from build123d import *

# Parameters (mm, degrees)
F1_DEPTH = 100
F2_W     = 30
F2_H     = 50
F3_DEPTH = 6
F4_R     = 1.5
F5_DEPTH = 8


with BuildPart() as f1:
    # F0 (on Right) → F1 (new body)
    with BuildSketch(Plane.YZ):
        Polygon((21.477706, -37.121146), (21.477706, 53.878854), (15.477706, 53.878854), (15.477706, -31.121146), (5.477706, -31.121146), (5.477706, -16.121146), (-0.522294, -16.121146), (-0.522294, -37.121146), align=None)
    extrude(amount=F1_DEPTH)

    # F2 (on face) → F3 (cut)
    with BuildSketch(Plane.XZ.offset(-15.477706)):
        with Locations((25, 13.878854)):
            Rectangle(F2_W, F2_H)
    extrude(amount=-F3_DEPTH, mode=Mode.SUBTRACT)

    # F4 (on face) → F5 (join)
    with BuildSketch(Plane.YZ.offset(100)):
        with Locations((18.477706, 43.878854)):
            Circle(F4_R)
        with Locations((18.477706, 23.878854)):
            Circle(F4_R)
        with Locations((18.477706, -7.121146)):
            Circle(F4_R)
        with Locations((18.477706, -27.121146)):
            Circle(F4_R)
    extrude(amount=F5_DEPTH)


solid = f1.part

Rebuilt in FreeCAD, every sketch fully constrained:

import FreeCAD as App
import Part
import Sketcher
from FreeCAD import Vector

doc = App.newDocument("Part")
params = doc.addObject("Spreadsheet::Sheet", "Params")
for row, (alias, value) in enumerate([
    ("sketch1_width", "6 mm"),
    ("sketch1_width2", "10 mm"),
    ("sketch1_height", "91 mm"),
    ("sketch1_height2", "85 mm"),
    ("sketch1_height3", "15 mm"),
    ("pad1_length", "100 mm"),
    ("sketch2_width", "30 mm"),
    ("sketch2_height", "50 mm"),
    ("pocket1_length", "6 mm"),
    ("sketch3_diameter", "3 mm"),
    ("pad2_length", "8 mm"),
], start=1):
    params.set(f"A{row}", alias)
    params.set(f"B{row}", "=" + value)
    params.setAlias(f"B{row}", alias)

body = doc.addObject("PartDesign::Body", "Body")

sketch1 = doc.addObject("Sketcher::SketchObject", "Sketch")
body.addObject(sketch1)
sketch1.AttachmentSupport = (doc.YZ_Plane, [""])
sketch1.MapMode = "FlatFace"
sketch1.addGeometry([
    Part.LineSegment(Vector(21, -37, 0), Vector(21, 54, 0)),
    Part.LineSegment(Vector(21, 54, 0), Vector(15, 54, 0)),
    Part.LineSegment(Vector(15, 54, 0), Vector(15, -31, 0)),
    Part.LineSegment(Vector(15, -31, 0), Vector(5, -31, 0)),
    Part.LineSegment(Vector(5, -31, 0), Vector(5, -16, 0)),
    Part.LineSegment(Vector(5, -16, 0), Vector(-1, -16, 0)),
    Part.LineSegment(Vector(-1, -16, 0), Vector(-1, -37, 0)),
    Part.LineSegment(Vector(-1, -37, 0), Vector(21, -37, 0)),
], False)
sketch1.addConstraint([
    Sketcher.Constraint("Coincident", 0, 2, 1, 1),
    Sketcher.Constraint("Coincident", 1, 2, 2, 1),
    Sketcher.Constraint("Coincident", 2, 2, 3, 1),
    Sketcher.Constraint("Coincident", 3, 2, 4, 1),
    Sketcher.Constraint("Coincident", 4, 2, 5, 1),
    Sketcher.Constraint("Coincident", 5, 2, 6, 1),
    Sketcher.Constraint("Coincident", 6, 2, 7, 1),
    Sketcher.Constraint("Coincident", 7, 2, 0, 1),
    Sketcher.Constraint("Vertical", 0),
    Sketcher.Constraint("Horizontal", 1),
    Sketcher.Constraint("Vertical", 2),
    Sketcher.Constraint("Horizontal", 3),
    Sketcher.Constraint("Vertical", 4),
    Sketcher.Constraint("Horizontal", 5),
    Sketcher.Constraint("Vertical", 6),
    Sketcher.Constraint("Horizontal", 7),
    Sketcher.Constraint("Equal", 1, 5),
    Sketcher.Constraint("DistanceX", 1, 2, 1, 1, 6.0),
    Sketcher.Constraint("DistanceX", 3, 2, 3, 1, 10.0),
    Sketcher.Constraint("DistanceY", 0, 1, 0, 2, 91.0),
    Sketcher.Constraint("DistanceY", 2, 2, 2, 1, 85.0),
    Sketcher.Constraint("DistanceY", 4, 1, 4, 2, 15.0),
    Sketcher.Constraint("DistanceX", -1, 1, 0, 2, 21.477706),
    Sketcher.Constraint("DistanceY", -1, 1, 0, 2, 53.878854),
])
sketch1.setExpression("Constraints[17]", "Params.sketch1_width")
sketch1.setExpression("Constraints[18]", "Params.sketch1_width2")
sketch1.setExpression("Constraints[19]", "Params.sketch1_height")
sketch1.setExpression("Constraints[20]", "Params.sketch1_height2")
sketch1.setExpression("Constraints[21]", "Params.sketch1_height3")
pad1 = doc.addObject("PartDesign::Pad", "Pad")
body.addObject(pad1)
pad1.Profile = sketch1
pad1.setExpression("Length", "Params.pad1_length")

sketch2 = doc.addObject("Sketcher::SketchObject", "Sketch001")
body.addObject(sketch2)
sketch2.AttachmentSupport = (doc.XZ_Plane, [""])
sketch2.MapMode = "FlatFace"
sketch2.AttachmentOffset = App.Placement(Vector(0, 0, -15.477706), App.Rotation())
sketch2.addGeometry([
    Part.LineSegment(Vector(10, 39, 0), Vector(10, -11, 0)),
    Part.LineSegment(Vector(10, -11, 0), Vector(40, -11, 0)),
    Part.LineSegment(Vector(40, -11, 0), Vector(40, 39, 0)),
    Part.LineSegment(Vector(40, 39, 0), Vector(10, 39, 0)),
], False)
sketch2.addConstraint([
    Sketcher.Constraint("Coincident", 0, 2, 1, 1),
    Sketcher.Constraint("Coincident", 1, 2, 2, 1),
    Sketcher.Constraint("Coincident", 2, 2, 3, 1),
    Sketcher.Constraint("Coincident", 3, 2, 0, 1),
    Sketcher.Constraint("Vertical", 0),
    Sketcher.Constraint("Horizontal", 1),
    Sketcher.Constraint("Vertical", 2),
    Sketcher.Constraint("Horizontal", 3),
    Sketcher.Constraint("DistanceX", 1, 1, 1, 2, 30.0),
    Sketcher.Constraint("DistanceY", 0, 2, 0, 1, 50.0),
    Sketcher.Constraint("DistanceX", -1, 1, 0, 2, 10.0),
    Sketcher.Constraint("DistanceY", 0, 2, -1, 1, 11.121146),
])
sketch2.setExpression("Constraints[8]", "Params.sketch2_width")
sketch2.setExpression("Constraints[9]", "Params.sketch2_height")
pocket1 = doc.addObject("PartDesign::Pocket", "Pocket")
body.addObject(pocket1)
pocket1.Profile = sketch2
pocket1.setExpression("Length", "Params.pocket1_length")

sketch3 = doc.addObject("Sketcher::SketchObject", "Sketch002")
body.addObject(sketch3)
sketch3.AttachmentSupport = (doc.YZ_Plane, [""])
sketch3.MapMode = "FlatFace"
sketch3.AttachmentOffset = App.Placement(Vector(0, 0, 100), App.Rotation())
sketch3.addGeometry([
    Part.Circle(Vector(18.5, 43.9, 0), Vector(0, 0, 1), 1.5),
    Part.Circle(Vector(18.5, 23.9, 0), Vector(0, 0, 1), 1.5),
    Part.Circle(Vector(18.5, -7.1, 0), Vector(0, 0, 1), 1.5),
    Part.Circle(Vector(18.5, -27.1, 0), Vector(0, 0, 1), 1.5),
], False)
sketch3.addConstraint([
    Sketcher.Constraint("Equal", 0, 1),
    Sketcher.Constraint("Equal", 1, 2),
    Sketcher.Constraint("Equal", 2, 3),
    Sketcher.Constraint("Vertical", 0, 3, 1, 3),
    Sketcher.Constraint("Vertical", 1, 3, 2, 3),
    Sketcher.Constraint("Vertical", 2, 3, 3, 3),
    Sketcher.Constraint("Diameter", 0, 3.0),
    Sketcher.Constraint("DistanceY", 1, 3, 0, 3, 20.0),
    Sketcher.Constraint("DistanceY", 2, 3, 1, 3, 31.0),
    Sketcher.Constraint("DistanceY", 3, 3, 2, 3, 20.0),
    Sketcher.Constraint("DistanceX", -1, 1, 0, 3, 18.477706),
    Sketcher.Constraint("DistanceY", -1, 1, 0, 3, 43.878854),
])
sketch3.setExpression("Constraints[6]", "Params.sketch3_diameter")
pad2 = doc.addObject("PartDesign::Pad", "Pad001")
body.addObject(pad2)
pad2.Profile = sketch3
pad2.setExpression("Length", "Params.pad2_length")

doc.recompute()
